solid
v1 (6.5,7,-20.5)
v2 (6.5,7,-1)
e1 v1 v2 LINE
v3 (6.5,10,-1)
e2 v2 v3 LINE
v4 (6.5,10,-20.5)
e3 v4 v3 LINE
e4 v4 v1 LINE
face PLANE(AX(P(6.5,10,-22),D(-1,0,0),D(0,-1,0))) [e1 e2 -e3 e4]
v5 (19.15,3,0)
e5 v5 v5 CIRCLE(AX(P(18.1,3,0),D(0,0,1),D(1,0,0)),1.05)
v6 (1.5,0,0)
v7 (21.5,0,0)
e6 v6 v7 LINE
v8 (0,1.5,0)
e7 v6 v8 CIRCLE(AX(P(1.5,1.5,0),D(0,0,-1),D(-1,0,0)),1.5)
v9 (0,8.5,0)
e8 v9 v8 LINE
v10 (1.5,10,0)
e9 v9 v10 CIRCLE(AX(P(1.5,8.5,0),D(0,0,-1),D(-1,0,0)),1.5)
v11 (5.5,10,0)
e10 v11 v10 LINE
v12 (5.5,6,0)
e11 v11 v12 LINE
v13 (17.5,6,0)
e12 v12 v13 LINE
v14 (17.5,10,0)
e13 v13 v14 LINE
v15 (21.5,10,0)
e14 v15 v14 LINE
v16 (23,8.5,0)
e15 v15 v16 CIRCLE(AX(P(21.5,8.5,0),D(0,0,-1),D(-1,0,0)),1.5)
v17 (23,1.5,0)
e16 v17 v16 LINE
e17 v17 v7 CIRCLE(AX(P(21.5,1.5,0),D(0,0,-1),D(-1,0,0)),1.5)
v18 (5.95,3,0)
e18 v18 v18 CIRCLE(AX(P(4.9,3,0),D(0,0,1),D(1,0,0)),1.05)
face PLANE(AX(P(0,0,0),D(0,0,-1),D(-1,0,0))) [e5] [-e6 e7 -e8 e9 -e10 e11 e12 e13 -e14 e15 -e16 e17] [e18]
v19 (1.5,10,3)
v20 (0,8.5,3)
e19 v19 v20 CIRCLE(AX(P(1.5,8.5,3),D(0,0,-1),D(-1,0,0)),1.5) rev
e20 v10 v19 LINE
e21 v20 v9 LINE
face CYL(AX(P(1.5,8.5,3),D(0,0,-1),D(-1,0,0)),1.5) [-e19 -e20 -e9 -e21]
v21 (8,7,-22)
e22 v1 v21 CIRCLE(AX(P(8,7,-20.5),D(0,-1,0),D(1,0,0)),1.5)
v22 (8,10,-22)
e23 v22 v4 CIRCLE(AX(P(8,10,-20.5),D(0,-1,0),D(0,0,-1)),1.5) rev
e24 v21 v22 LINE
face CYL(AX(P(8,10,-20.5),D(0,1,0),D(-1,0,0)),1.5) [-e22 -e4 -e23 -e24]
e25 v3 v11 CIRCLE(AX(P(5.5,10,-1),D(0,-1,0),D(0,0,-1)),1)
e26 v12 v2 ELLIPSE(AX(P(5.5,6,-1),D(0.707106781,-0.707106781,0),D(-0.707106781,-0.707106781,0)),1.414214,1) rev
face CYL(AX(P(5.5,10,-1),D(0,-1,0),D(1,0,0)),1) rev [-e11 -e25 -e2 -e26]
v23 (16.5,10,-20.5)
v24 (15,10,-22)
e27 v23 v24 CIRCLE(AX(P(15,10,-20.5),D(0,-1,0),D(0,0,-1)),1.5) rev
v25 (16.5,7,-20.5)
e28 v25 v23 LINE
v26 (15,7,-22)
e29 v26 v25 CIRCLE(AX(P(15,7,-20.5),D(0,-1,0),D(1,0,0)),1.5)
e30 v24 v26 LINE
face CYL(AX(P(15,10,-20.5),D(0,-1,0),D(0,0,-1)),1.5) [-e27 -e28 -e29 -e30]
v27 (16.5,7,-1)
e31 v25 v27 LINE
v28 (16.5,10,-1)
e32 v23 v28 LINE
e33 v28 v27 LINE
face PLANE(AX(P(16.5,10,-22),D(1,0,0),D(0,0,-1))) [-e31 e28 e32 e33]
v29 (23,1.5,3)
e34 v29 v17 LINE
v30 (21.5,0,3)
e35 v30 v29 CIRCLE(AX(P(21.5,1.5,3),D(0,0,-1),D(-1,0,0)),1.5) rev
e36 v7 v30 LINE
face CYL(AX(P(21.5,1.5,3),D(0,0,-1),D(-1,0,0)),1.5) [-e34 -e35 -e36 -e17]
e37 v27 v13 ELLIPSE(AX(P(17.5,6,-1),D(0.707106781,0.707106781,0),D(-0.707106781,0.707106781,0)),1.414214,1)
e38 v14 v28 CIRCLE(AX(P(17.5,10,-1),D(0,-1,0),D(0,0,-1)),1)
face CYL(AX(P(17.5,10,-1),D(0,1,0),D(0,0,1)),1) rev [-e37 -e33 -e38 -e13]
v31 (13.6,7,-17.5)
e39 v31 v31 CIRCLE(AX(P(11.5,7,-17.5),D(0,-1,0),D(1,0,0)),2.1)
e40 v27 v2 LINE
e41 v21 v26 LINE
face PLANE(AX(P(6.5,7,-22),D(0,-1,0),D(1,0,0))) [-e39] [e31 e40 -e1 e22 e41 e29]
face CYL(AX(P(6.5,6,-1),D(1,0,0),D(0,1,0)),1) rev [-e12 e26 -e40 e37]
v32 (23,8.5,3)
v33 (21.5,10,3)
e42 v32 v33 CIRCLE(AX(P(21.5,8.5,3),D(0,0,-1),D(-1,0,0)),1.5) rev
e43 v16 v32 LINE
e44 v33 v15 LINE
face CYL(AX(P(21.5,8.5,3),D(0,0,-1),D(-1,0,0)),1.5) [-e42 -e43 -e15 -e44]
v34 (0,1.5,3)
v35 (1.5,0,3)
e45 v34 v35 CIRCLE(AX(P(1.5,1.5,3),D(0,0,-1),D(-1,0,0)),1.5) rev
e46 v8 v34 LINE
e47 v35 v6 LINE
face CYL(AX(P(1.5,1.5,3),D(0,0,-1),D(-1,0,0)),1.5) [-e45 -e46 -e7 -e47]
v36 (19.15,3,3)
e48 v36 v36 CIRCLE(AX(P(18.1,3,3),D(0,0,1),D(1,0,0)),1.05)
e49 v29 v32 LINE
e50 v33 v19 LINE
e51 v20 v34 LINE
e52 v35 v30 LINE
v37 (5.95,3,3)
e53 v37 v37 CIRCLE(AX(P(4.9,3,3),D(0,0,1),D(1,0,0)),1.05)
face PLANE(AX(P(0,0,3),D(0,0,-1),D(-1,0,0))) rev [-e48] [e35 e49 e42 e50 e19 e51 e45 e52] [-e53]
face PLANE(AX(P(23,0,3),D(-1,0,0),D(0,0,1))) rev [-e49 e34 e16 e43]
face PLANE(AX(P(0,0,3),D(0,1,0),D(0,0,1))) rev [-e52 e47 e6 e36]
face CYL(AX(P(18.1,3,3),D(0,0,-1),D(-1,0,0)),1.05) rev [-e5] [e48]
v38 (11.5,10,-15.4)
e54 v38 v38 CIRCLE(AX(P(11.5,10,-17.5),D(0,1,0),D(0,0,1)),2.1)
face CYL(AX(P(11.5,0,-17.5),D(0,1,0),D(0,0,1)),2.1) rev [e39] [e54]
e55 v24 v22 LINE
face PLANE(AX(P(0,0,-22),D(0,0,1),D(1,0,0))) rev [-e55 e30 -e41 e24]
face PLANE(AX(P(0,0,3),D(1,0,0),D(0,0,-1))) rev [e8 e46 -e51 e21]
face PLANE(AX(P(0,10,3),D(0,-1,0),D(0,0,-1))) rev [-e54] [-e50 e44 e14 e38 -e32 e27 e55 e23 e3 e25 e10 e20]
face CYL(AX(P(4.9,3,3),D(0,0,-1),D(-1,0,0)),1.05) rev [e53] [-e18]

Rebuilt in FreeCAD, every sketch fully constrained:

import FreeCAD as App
import Part
import Sketcher

V = App.Vector
Q = App.Units.Quantity


def edges_at(feature, points):
    """Names of the edges that pass closest to the given points."""
    edges = feature.Shape.Edges
    near = lambda p: min(range(len(edges)), key=lambda i: edges[i].distToShape(Part.Vertex(*p))[0])
    return sorted({f"Edge{near(p) + 1}" for p in points})

doc = App.newDocument("Part")
body = doc.addObject("PartDesign::Body", "Body")

# Sketch on XY plane
sketch1 = doc.addObject("Sketcher::SketchObject", "Sketch")
body.addObject(sketch1)
sketch1.AttachmentSupport = (doc.XY_Plane, [""])
sketch1.MapMode = "FlatFace"
sketch1.addGeometry(Part.LineSegment(V(0, 10, 0), V(0, 0, 0)), False)
sketch1.addGeometry(Part.LineSegment(V(0, 0, 0), V(23, 0, 0)), False)
sketch1.addGeometry(Part.LineSegment(V(23, 0, 0), V(23, 10, 0)), False)
sketch1.addGeometry(Part.LineSegment(V(23, 10, 0), V(0, 10, 0)), False)
sketch1.addGeometry(Part.Circle(V(4.9, 3, 0), V(0, 0, 1), 1.05), False)
sketch1.addGeometry(Part.Circle(V(18.1, 3, 0), V(0, 0, 1), 1.05), False)
sketch1.addConstraint(Sketcher.Constraint("Coincident", 0, 2, 1, 1))
sketch1.addConstraint(Sketcher.Constraint("Coincident", 1, 2, 2, 1))
sketch1.addConstraint(Sketcher.Constraint("Coincident", 2, 2, 3, 1))
sketch1.addConstraint(Sketcher.Constraint("Coincident", 3, 2, 0, 1))
sketch1.addConstraint(Sketcher.Constraint("Vertical", 0))
sketch1.addConstraint(Sketcher.Constraint("Horizontal", 1))
sketch1.addConstraint(Sketcher.Constraint("Vertical", 2))
sketch1.addConstraint(Sketcher.Constraint("Horizontal", 3))
sketch1.addConstraint(Sketcher.Constraint("Coincident", 0, 2, -1, 1))
sketch1.addConstraint(Sketcher.Constraint("Equal", 4, 5))
sketch1.addConstraint(Sketcher.Constraint("Horizontal", 4, 3, 5, 3))
sketch1.addConstraint(Sketcher.Constraint("Diameter", 4, Q("2.1 mm")))
sketch1.addConstraint(Sketcher.Constraint("DistanceX", 1, 1, 1, 2, Q("23 mm")))
sketch1.addConstraint(Sketcher.Constraint("DistanceY", 0, 2, 0, 1, Q("10 mm")))
sketch1.addConstraint(Sketcher.Constraint("DistanceY", -1, 1, 4, 3, Q("3 mm")))
sketch1.addConstraint(Sketcher.Constraint("DistanceX", -1, 1, 4, 3, Q("4.9 mm")))
sketch1.addConstraint(Sketcher.Constraint("DistanceX", -1, 1, 5, 3, Q("18.1 mm")))
pad1 = doc.addObject("PartDesign::Pad", "Pad")
body.addObject(pad1)
pad1.Profile = sketch1
pad1.Length = 3

# Sketch on XY plane
sketch2 = doc.addObject("Sketcher::SketchObject", "Sketch001")
body.addObject(sketch2)
sketch2.AttachmentSupport = (doc.XY_Plane, [""])
sketch2.MapMode = "FlatFace"
sketch2.AttachmentOffset = App.Placement(V(0, 0, 3), App.Rotation())
sketch2.addGeometry(Part.LineSegment(V(6.5, 10, 0), V(6.5, 7, 0)), False)
sketch2.addGeometry(Part.LineSegment(V(6.5, 7, 0), V(16.5, 7, 0)), False)
sketch2.addGeometry(Part.LineSegment(V(16.5, 7, 0), V(16.5, 10, 0)), False)
sketch2.addGeometry(Part.LineSegment(V(16.5, 10, 0), V(6.5, 10, 0)), False)
sketch2.addConstraint(Sketcher.Constraint("Coincident", 0, 2, 1, 1))
sketch2.addConstraint(Sketcher.Constraint("Coincident", 1, 2, 2, 1))
sketch2.addConstraint(Sketcher.Constraint("Coincident", 2, 2, 3, 1))
sketch2.addConstraint(Sketcher.Constraint("Coincident", 3, 2, 0, 1))
sketch2.addConstraint(Sketcher.Constraint("Vertical", 0))
sketch2.addConstraint(Sketcher.Constraint("Horizontal", 1))
sketch2.addConstraint(Sketcher.Constraint("Vertical", 2))
sketch2.addConstraint(Sketcher.Constraint("Horizontal", 3))
sketch2.addConstraint(Sketcher.Constraint("DistanceX", 1, 1, 1, 2, Q("10 mm")))
sketch2.addConstraint(Sketcher.Constraint("DistanceY", 0, 2, 0, 1, Q("3 mm")))
sketch2.addConstraint(Sketcher.Constraint("DistanceY", -1, 1, 0, 2, Q("7 mm")))
sketch2.addConstraint(Sketcher.Constraint("DistanceX", -1, 1, 0, 2, Q("6.5 mm")))
pad2 = doc.addObject("PartDesign::Pad", "Pad001")
body.addObject(pad2)
pad2.Profile = sketch2
pad2.Length = 25
pad2.Reversed = True

# Sketch on XZ plane
sketch3 = doc.addObject("Sketcher::SketchObject", "Sketch002")
body.addObject(sketch3)
sketch3.AttachmentSupport = (doc.XZ_Plane, [""])
sketch3.MapMode = "FlatFace"
sketch3.AttachmentOffset = App.Placement(V(0, 0, -10), App.Rotation())
sketch3.addGeometry(Part.Circle(V(11.5, -17.5, 0), V(0, 0, 1), 2.1), False)
sketch3.addConstraint(Sketcher.Constraint("Diameter", 0, Q("4.2 mm")))
sketch3.addConstraint(Sketcher.Constraint("DistanceX", -1, 1, 0, 3, Q("11.5 mm")))
sketch3.addConstraint(Sketcher.Constraint("DistanceY", 0, 3, -1, 1, Q("17.5 mm")))
pocket1 = doc.addObject("PartDesign::Pocket", "Pocket")
body.addObject(pocket1)
pocket1.Profile = sketch3
pocket1.Type = "ThroughAll"
pocket1.Reversed = True
doc.recompute()

fillet = doc.addObject("PartDesign::Fillet", "Fillet")
body.addObject(fillet)
fillet.Base = (pocket1, edges_at(pocket1, [
    (6.5, 8.5, -22),
    (16.5, 8.5, -22),
    (0, 10, 1.5),
    (23, 10, 1.5),
    (23, 0, 1.5),
    (0, 0, 1.5),
]))
fillet.Radius = 1.5
doc.recompute()

fillet2 = doc.addObject("PartDesign::Fillet", "Fillet001")
body.addObject(fillet2)
fillet2.Base = (fillet, edges_at(fillet, [(11.5, 7, 0), (6.5, 8.5, 0), (16.5, 8.5, 0)]))
fillet2.Radius = 1

doc.recompute()
